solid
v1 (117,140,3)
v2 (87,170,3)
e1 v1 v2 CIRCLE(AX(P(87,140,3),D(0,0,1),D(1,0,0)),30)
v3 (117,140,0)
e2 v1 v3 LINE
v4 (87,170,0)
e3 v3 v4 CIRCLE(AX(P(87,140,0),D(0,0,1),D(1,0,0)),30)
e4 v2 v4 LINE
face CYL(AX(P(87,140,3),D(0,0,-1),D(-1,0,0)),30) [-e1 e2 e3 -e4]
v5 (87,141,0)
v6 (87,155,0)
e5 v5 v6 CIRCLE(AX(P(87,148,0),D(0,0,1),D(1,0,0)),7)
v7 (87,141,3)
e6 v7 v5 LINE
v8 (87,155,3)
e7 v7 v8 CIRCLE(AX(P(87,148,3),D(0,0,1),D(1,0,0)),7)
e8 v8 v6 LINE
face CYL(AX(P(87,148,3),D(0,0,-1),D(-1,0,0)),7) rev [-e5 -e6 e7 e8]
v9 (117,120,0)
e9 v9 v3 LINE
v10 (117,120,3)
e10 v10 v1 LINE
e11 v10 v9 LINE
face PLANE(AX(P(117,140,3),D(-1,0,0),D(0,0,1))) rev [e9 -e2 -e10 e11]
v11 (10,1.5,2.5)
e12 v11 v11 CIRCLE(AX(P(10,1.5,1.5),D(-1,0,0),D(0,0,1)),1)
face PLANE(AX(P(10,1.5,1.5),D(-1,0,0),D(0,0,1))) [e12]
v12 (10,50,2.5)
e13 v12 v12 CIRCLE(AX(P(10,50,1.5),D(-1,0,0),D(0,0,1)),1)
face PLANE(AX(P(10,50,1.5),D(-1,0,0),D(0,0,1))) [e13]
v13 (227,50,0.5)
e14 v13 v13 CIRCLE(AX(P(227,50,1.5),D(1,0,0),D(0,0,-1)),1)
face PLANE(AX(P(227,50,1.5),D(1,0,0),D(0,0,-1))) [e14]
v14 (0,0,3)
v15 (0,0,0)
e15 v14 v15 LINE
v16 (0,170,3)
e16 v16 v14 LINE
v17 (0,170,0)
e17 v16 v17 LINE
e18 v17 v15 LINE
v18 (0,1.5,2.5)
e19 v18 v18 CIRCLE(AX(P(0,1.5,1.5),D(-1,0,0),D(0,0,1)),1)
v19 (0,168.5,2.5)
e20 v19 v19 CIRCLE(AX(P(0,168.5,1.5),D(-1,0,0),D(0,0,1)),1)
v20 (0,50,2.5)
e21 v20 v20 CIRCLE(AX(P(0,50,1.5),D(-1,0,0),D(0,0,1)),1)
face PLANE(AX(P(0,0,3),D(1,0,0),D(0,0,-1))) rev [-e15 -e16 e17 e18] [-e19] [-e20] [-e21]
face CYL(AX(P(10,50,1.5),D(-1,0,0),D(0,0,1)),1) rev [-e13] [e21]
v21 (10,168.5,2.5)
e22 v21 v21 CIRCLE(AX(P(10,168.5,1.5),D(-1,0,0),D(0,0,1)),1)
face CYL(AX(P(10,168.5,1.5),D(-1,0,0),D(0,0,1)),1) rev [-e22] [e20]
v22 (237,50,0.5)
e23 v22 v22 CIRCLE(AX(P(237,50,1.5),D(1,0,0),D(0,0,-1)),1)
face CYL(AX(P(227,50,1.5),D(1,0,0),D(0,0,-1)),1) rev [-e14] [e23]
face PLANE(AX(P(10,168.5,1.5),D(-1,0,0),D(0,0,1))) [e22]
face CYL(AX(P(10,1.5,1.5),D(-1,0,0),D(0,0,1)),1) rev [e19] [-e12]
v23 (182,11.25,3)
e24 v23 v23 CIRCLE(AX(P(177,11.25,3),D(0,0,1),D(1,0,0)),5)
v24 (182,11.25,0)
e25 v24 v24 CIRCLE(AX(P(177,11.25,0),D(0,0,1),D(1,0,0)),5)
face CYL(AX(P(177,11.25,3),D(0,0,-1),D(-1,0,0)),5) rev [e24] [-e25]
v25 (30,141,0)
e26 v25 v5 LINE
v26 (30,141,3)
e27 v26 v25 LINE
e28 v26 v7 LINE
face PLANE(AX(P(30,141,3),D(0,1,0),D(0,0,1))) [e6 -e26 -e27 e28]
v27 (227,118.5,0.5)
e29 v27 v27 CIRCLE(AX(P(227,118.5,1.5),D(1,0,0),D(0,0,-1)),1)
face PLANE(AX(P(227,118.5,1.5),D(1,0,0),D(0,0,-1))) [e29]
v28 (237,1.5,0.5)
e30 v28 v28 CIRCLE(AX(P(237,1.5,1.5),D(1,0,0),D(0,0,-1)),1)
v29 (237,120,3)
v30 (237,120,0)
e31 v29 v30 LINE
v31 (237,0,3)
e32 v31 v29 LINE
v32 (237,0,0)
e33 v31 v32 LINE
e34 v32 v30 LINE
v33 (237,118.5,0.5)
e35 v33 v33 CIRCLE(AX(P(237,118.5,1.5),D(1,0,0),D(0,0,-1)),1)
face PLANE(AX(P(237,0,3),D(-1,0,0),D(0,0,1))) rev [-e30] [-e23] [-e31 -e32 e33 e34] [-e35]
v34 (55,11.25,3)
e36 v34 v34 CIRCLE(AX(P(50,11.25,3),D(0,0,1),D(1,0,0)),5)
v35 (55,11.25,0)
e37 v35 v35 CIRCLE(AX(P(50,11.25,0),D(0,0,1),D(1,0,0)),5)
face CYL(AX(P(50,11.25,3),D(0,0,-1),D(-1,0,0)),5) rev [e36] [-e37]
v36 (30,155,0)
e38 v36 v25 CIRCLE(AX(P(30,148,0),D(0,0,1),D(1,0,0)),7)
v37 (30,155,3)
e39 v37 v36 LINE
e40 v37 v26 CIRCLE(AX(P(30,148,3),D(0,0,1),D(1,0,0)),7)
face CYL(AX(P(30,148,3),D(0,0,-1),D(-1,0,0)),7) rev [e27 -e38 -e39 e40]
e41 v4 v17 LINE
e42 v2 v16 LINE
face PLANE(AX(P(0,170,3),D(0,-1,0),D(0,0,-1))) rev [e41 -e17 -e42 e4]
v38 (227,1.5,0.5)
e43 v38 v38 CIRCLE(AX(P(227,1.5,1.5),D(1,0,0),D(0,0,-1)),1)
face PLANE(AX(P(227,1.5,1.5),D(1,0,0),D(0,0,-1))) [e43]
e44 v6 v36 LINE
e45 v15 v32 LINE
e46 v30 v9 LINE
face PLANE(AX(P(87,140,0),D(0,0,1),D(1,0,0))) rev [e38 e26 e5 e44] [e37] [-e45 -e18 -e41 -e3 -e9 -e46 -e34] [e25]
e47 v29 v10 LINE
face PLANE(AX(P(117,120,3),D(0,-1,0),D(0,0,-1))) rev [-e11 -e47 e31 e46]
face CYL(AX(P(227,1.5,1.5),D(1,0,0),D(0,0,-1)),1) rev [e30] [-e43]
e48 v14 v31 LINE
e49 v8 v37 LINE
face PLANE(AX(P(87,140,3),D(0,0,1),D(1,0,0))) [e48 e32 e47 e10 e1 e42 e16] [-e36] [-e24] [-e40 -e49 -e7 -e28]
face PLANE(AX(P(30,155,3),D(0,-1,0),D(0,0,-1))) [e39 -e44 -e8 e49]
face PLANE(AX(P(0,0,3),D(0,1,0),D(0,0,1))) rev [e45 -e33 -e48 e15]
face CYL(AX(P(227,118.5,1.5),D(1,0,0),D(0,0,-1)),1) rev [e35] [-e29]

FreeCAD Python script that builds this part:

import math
import FreeCAD as App
import Part
import Sketcher

doc = App.newDocument("Part")
params = doc.addObject("Spreadsheet::Sheet", "Params")
for row, (alias, value) in enumerate([
    ("sketch1_diameter", "10 mm"),
    ("sketch1_radius", "30 mm"),
    ("sketch1_radius2", "7 mm"),
    ("sketch1_width", "87 mm"),
    ("sketch1_width2", "237 mm"),
    ("pad1_length", "3 mm"),
    ("sketch2_diameter", "2 mm"),
    ("pocket1_length", "10 mm"),
    ("sketch3_diameter", "2 mm"),
    ("pocket2_length", "10 mm"),
    ("sketch4_diameter", "2 mm"),
    ("pocket3_length", "10 mm"),
], start=1):
    params.set(f"A{row}", alias)
    params.set(f"B{row}", "=" + value)
    params.setAlias(f"B{row}", alias)

body = doc.addObject("PartDesign::Body", "Body")

# Sketch on XY plane
sketch1 = body.newObject("Sketcher::SketchObject", "Sketch")
sketch1.AttachmentSupport = (doc.getObject("XY_Plane"), [""])
sketch1.MapMode = "FlatFace"
sketch1.addGeometry([
    Part.LineSegment(App.Vector(117, 120, 0), App.Vector(117, 140, 0)),  # 0
    Part.ArcOfCircle(Part.Circle(App.Vector(87, 140, 0), App.Vector(0, 0, 1), 30), math.radians(0), math.radians(90)),  # 1
    Part.LineSegment(App.Vector(87, 170, 0), App.Vector(0, 170, 0)),  # 2
    Part.LineSegment(App.Vector(0, 170, 0), App.Vector(0, 0, 0)),  # 3
    Part.LineSegment(App.Vector(0, 0, 0), App.Vector(237, 0, 0)),  # 4
    Part.LineSegment(App.Vector(237, 0, 0), App.Vector(237, 120, 0)),  # 5
    Part.LineSegment(App.Vector(237, 120, 0), App.Vector(117, 120, 0)),  # 6
    Part.Circle(App.Vector(177, 11, 0), App.Vector(0, 0, 1), 5),  # 7
    Part.Circle(App.Vector(50, 11, 0), App.Vector(0, 0, 1), 5),  # 8
    Part.LineSegment(App.Vector(30, 155, 0), App.Vector(87, 155, 0)),  # 9
    Part.ArcOfCircle(Part.Circle(App.Vector(87, 148, 0), App.Vector(0, 0, 1), 7), math.radians(-90), math.radians(90)),  # 10
    Part.LineSegment(App.Vector(87, 141, 0), App.Vector(30, 141, 0)),  # 11
    Part.ArcOfCircle(Part.Circle(App.Vector(30, 148, 0), App.Vector(0, 0, 1), 7), math.radians(90), math.radians(270)),  # 12
], False)
sketch1.addConstraint([
    Sketcher.Constraint("Tangent", 0, 2, 1, 1),
    Sketcher.Constraint("Tangent", 1, 2, 2, 1),
    Sketcher.Constraint("Coincident", 2, 2, 3, 1),
    Sketcher.Constraint("Coincident", 3, 2, 4, 1),
    Sketcher.Constraint("Coincident", 4, 2, 5, 1),
    Sketcher.Constraint("Coincident", 5, 2, 6, 1),
    Sketcher.Constraint("Coincident", 6, 2, 0, 1),
    Sketcher.Constraint("Tangent", 9, 2, 10, 2),
    Sketcher.Constraint("Tangent", 10, 1, 11, 1),
    Sketcher.Constraint("Tangent", 11, 2, 12, 2),
    Sketcher.Constraint("Tangent", 12, 1, 9, 1),
    Sketcher.Constraint("Vertical", 0),
    Sketcher.Constraint("Horizontal", 2),
    Sketcher.Constraint("Vertical", 3),
    Sketcher.Constraint("Horizontal", 4),
    Sketcher.Constraint("Vertical", 5),
    Sketcher.Constraint("Horizontal", 6),
    Sketcher.Constraint("Horizontal", 9),
    Sketcher.Constraint("Horizontal", 11),
    Sketcher.Constraint("Coincident", 3, 2, -1, 1),
    Sketcher.Constraint("Equal", 7, 8),
    Sketcher.Constraint("Horizontal", 7, 3, 8, 3),
    Sketcher.Constraint("Vertical", 1, 3, 10, 3),
    Sketcher.Constraint("Equal", 6, 5),
    Sketcher.Constraint("Diameter", 7, 10.0),
    Sketcher.Constraint("Radius", 1, 30.0),
    Sketcher.Constraint("Radius", 10, 7.0),
    Sketcher.Constraint("DistanceX", 2, 2, 2, 1, 87.0),
    Sketcher.Constraint("DistanceX", 4, 1, 4, 2, 237.0),
    Sketcher.Constraint("DistanceX", 9, 1, 9, 2, 57.0),
    Sketcher.Constraint("DistanceY", 0, 1, 0, 2, 20.0),
    Sketcher.Constraint("DistanceX", -1, 1, 7, 3, 177.0),
    Sketcher.Constraint("DistanceX", -1, 1, 8, 3, 50.0),
    Sketcher.Constraint("DistanceY", -1, 1, 10, 3, 148.0),
    Sketcher.Constraint("DistanceY", -1, 1, 7, 3, 11.25),
])
sketch1.setExpression("Constraints[24]", "Params.sketch1_diameter")
sketch1.setExpression("Constraints[25]", "Params.sketch1_radius")
sketch1.setExpression("Constraints[26]", "Params.sketch1_radius2")
sketch1.setExpression("Constraints[27]", "Params.sketch1_width")
sketch1.setExpression("Constraints[28]", "Params.sketch1_width2")
pad1 = body.newObject("PartDesign::Pad", "Pad")
pad1.Profile = sketch1
pad1.setExpression("Length", "Params.pad1_length")

# Sketch on YZ plane
sketch2 = body.newObject("Sketcher::SketchObject", "Sketch001")
sketch2.AttachmentSupport = (doc.getObject("YZ_Plane"), [""])
sketch2.MapMode = "FlatFace"
sketch2.addGeometry([
    Part.Circle(App.Vector(168.5, 1.5, 0), App.Vector(0, 0, 1), 1),
    Part.Circle(App.Vector(1.5, 1.5, 0), App.Vector(0, 0, 1), 1),
], False)
sketch2.addConstraint([
    Sketcher.Constraint("Equal", 0, 1),
    Sketcher.Constraint("Horizontal", 0, 3, 1, 3),
    Sketcher.Constraint("Diameter", 0, 2.0),
    Sketcher.Constraint("DistanceX", 1, 3, 0, 3, 167.0),
    Sketcher.Constraint("DistanceX", -1, 1, 0, 3, 168.5),
    Sketcher.Constraint("DistanceY", -1, 1, 0, 3, 1.5),
])
sketch2.setExpression("Constraints[2]", "Params.sketch2_diameter")
pocket1 = body.newObject("PartDesign::Pocket", "Pocket")
pocket1.Profile = sketch2
pocket1.setExpression("Length", "Params.pocket1_length")
pocket1.Reversed = True

# Sketch on YZ plane
sketch3 = body.newObject("Sketcher::SketchObject", "Sketch002")
sketch3.AttachmentSupport = (doc.getObject("YZ_Plane"), [""])
sketch3.MapMode = "FlatFace"
sketch3.addGeometry(Part.Circle(App.Vector(50, 1.5, 0), App.Vector(0, 0, 1), 1), False)
sketch3.addConstraint([
    Sketcher.Constraint("Diameter", 0, 2.0),
    Sketcher.Constraint("DistanceX", -1, 1, 0, 3, 50.0),
    Sketcher.Constraint("DistanceY", -1, 1, 0, 3, 1.5),
])
sketch3.setExpression("Constraints[0]", "Params.sketch3_diameter")
pocket2 = body.newObject("PartDesign::Pocket", "Pocket001")
pocket2.Profile = sketch3
pocket2.setExpression("Length", "Params.pocket2_length")
pocket2.Reversed = True

# Sketch on YZ plane
sketch4 = body.newObject("Sketcher::SketchObject", "Sketch003")
sketch4.AttachmentSupport = (doc.getObject("YZ_Plane"), [""])
sketch4.MapMode = "FlatFace"
sketch4.AttachmentOffset = App.Placement(App.Vector(0, 0, 227), App.Rotation())
sketch4.addGeometry([
    Part.Circle(App.Vector(118.5, 1.5, 0), App.Vector(0, 0, 1), 1),
    Part.Circle(App.Vector(1.5, 1.5, 0), App.Vector(0, 0, 1), 1),
    Part.Circle(App.Vector(50, 1.5, 0), App.Vector(0, 0, 1), 1),
], False)
sketch4.addConstraint([
    Sketcher.Constraint("Equal", 0, 1),
    Sketcher.Constraint("Equal", 1, 2),
    Sketcher.Constraint("Horizontal", 0, 3, 1, 3),
    Sketcher.Constraint("Horizontal", 1, 3, 2, 3),
    Sketcher.Constraint("Diameter", 0, 2.0),
    Sketcher.Constraint("DistanceX", -1, 1, 2, 3, 50.0),
    Sketcher.Constraint("DistanceX", 1, 3, 0, 3, 117.0),
    Sketcher.Constraint("DistanceX", -1, 1, 0, 3, 118.5),
    Sketcher.Constraint("DistanceY", -1, 1, 0, 3, 1.5),
])
sketch4.setExpression("Constraints[4]", "Params.sketch4_diameter")
pocket3 = body.newObject("PartDesign::Pocket", "Pocket002")
pocket3.Profile = sketch4
pocket3.setExpression("Length", "Params.pocket3_length")
pocket3.Reversed = True

doc.recompute()
